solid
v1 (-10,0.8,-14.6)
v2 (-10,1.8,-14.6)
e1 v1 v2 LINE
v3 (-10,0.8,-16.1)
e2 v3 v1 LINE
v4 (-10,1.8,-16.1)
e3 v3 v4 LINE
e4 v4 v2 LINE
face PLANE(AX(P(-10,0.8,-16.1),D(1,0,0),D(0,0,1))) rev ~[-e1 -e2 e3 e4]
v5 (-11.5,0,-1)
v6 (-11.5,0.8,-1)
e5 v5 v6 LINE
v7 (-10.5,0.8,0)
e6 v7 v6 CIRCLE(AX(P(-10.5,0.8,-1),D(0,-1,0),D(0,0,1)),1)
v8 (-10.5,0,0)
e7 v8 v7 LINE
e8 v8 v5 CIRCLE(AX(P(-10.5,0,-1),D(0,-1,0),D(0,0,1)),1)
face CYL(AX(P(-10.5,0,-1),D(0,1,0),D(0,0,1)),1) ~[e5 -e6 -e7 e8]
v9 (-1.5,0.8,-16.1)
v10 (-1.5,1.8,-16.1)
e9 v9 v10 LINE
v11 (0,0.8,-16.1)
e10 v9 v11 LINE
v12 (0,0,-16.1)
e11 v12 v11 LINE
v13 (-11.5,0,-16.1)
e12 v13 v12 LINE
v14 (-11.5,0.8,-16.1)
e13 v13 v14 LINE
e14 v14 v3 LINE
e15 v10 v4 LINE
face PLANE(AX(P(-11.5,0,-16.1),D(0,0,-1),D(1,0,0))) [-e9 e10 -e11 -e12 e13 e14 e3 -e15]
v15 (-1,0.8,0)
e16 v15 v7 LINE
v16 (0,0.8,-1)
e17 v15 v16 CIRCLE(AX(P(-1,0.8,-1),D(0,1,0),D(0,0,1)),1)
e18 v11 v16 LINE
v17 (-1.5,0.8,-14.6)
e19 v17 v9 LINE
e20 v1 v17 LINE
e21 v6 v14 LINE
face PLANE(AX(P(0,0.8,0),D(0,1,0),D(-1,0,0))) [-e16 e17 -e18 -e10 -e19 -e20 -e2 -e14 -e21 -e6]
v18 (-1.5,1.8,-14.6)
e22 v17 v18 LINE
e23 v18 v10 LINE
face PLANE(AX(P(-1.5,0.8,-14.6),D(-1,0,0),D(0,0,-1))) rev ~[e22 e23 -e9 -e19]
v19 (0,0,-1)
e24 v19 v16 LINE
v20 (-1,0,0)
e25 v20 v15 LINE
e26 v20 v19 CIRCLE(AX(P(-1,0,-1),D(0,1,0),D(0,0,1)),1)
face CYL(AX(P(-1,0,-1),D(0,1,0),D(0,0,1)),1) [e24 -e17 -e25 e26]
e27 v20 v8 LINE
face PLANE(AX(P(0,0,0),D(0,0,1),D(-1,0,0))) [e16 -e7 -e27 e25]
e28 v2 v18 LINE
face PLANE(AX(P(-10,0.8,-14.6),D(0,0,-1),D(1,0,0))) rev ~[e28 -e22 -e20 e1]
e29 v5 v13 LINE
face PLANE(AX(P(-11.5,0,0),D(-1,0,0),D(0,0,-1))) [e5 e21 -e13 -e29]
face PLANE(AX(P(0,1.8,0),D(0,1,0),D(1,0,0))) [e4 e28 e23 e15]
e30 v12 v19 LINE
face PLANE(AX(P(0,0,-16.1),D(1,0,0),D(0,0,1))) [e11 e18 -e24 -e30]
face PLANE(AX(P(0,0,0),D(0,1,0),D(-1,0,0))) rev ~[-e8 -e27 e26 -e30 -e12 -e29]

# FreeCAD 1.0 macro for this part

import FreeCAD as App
import Part
import Sketcher

V = App.Vector
Q = App.Units.Quantity


def edges_at(feature, points):
    """Names of the edges that pass closest to the given points."""
    edges = feature.Shape.Edges
    near = lambda p: min(range(len(edges)), key=lambda i: edges[i].distToShape(Part.Vertex(*p))[0])
    return sorted({f"Edge{near(p) + 1}" for p in points})

doc = App.newDocument("Part")
body = doc.addObject("PartDesign::Body", "Body")

# Sketch on XZ plane
sketch1 = doc.addObject("Sketcher::SketchObject", "Sketch")
body.addObject(sketch1)
sketch1.AttachmentSupport = (doc.XZ_Plane, [""])
sketch1.MapMode = "FlatFace"
sketch1.addGeometry(Part.LineSegment(V(-11.5, 0, 0), V(0, 0, 0)), False)
sketch1.addGeometry(Part.LineSegment(V(0, 0, 0), V(0, -16.1, 0)), False)
sketch1.addGeometry(Part.LineSegment(V(0, -16.1, 0), V(-11.5, -16.1, 0)), False)
sketch1.addGeometry(Part.LineSegment(V(-11.5, -16.1, 0), V(-11.5, 0, 0)), False)
sketch1.addConstraint(Sketcher.Constraint("Coincident", 0, 2, 1, 1))
sketch1.addConstraint(Sketcher.Constraint("Coincident", 1, 2, 2, 1))
sketch1.addConstraint(Sketcher.Constraint("Coincident", 2, 2, 3, 1))
sketch1.addConstraint(Sketcher.Constraint("Coincident", 3, 2, 0, 1))
sketch1.addConstraint(Sketcher.Constraint("Horizontal", 0))
sketch1.addConstraint(Sketcher.Constraint("Vertical", 1))
sketch1.addConstraint(Sketcher.Constraint("Horizontal", 2))
sketch1.addConstraint(Sketcher.Constraint("Vertical", 3))
sketch1.addConstraint(Sketcher.Constraint("Coincident", 0, 2, -1, 1))
sketch1.addConstraint(Sketcher.Constraint("DistanceX", 0, 1, 0, 2, Q("11.5 mm")))
sketch1.addConstraint(Sketcher.Constraint("DistanceY", 1, 2, 1, 1, Q("16.1 mm")))
pad1 = doc.addObject("PartDesign::Pad", "Pad")
body.addObject(pad1)
pad1.Profile = sketch1
pad1.Length = 0.8
pad1.Reversed = True
doc.recompute()

fillet = doc.addObject("PartDesign::Fillet", "Fillet")
body.addObject(fillet)
fillet.Base = (pad1, edges_at(pad1, [(0, 0.4, 0), (-11.5, 0.4, 0)]))
fillet.Radius = 1

# Sketch on XZ plane
sketch2 = doc.addObject("Sketcher::SketchObject", "Sketch001")
body.addObject(sketch2)
sketch2.AttachmentSupport = (doc.XZ_Plane, [""])
sketch2.MapMode = "FlatFace"
sketch2.AttachmentOffset = App.Placement(V(0, 0, -0.8), App.Rotation())
sketch2.addGeometry(Part.LineSegment(V(-1.5, -14.6, 0), V(-1.5, -16.1, 0)), False)
sketch2.addGeometry(Part.LineSegment(V(-1.5, -16.1, 0), V(-10, -16.1, 0)), False)
sketch2.addGeometry(Part.LineSegment(V(-10, -16.1, 0), V(-10, -14.6, 0)), False)
sketch2.addGeometry(Part.LineSegment(V(-10, -14.6, 0), V(-1.5, -14.6, 0)), False)
sketch2.addConstraint(Sketcher.Constraint("Coincident", 0, 2, 1, 1))
sketch2.addConstraint(Sketcher.Constraint("Coincident", 1, 2, 2, 1))
sketch2.addConstraint(Sketcher.Constraint("Coincident", 2, 2, 3, 1))
sketch2.addConstraint(Sketcher.Constraint("Coincident", 3, 2, 0, 1))
sketch2.addConstraint(Sketcher.Constraint("Vertical", 0))
sketch2.addConstraint(Sketcher.Constraint("Horizontal", 1))
sketch2.addConstraint(Sketcher.Constraint("Vertical", 2))
sketch2.addConstraint(Sketcher.Constraint("Horizontal", 3))
sketch2.addConstraint(Sketcher.Constraint("DistanceX", 1, 2, 1, 1, Q("8.5 mm")))
sketch2.addConstraint(Sketcher.Constraint("DistanceY", 0, 2, 0, 1, Q("1.5 mm")))
sketch2.addConstraint(Sketcher.Constraint("DistanceX", 0, 2, -1, 1, Q("1.5 mm")))
sketch2.addConstraint(Sketcher.Constraint("DistanceY", 0, 2, -1, 1, Q("16.1 mm")))
pad2 = doc.addObject("PartDesign::Pad", "Pad001")
body.addObject(pad2)
pad2.Profile = sketch2
pad2.Length = 1
pad2.Reversed = True

doc.recompute()
